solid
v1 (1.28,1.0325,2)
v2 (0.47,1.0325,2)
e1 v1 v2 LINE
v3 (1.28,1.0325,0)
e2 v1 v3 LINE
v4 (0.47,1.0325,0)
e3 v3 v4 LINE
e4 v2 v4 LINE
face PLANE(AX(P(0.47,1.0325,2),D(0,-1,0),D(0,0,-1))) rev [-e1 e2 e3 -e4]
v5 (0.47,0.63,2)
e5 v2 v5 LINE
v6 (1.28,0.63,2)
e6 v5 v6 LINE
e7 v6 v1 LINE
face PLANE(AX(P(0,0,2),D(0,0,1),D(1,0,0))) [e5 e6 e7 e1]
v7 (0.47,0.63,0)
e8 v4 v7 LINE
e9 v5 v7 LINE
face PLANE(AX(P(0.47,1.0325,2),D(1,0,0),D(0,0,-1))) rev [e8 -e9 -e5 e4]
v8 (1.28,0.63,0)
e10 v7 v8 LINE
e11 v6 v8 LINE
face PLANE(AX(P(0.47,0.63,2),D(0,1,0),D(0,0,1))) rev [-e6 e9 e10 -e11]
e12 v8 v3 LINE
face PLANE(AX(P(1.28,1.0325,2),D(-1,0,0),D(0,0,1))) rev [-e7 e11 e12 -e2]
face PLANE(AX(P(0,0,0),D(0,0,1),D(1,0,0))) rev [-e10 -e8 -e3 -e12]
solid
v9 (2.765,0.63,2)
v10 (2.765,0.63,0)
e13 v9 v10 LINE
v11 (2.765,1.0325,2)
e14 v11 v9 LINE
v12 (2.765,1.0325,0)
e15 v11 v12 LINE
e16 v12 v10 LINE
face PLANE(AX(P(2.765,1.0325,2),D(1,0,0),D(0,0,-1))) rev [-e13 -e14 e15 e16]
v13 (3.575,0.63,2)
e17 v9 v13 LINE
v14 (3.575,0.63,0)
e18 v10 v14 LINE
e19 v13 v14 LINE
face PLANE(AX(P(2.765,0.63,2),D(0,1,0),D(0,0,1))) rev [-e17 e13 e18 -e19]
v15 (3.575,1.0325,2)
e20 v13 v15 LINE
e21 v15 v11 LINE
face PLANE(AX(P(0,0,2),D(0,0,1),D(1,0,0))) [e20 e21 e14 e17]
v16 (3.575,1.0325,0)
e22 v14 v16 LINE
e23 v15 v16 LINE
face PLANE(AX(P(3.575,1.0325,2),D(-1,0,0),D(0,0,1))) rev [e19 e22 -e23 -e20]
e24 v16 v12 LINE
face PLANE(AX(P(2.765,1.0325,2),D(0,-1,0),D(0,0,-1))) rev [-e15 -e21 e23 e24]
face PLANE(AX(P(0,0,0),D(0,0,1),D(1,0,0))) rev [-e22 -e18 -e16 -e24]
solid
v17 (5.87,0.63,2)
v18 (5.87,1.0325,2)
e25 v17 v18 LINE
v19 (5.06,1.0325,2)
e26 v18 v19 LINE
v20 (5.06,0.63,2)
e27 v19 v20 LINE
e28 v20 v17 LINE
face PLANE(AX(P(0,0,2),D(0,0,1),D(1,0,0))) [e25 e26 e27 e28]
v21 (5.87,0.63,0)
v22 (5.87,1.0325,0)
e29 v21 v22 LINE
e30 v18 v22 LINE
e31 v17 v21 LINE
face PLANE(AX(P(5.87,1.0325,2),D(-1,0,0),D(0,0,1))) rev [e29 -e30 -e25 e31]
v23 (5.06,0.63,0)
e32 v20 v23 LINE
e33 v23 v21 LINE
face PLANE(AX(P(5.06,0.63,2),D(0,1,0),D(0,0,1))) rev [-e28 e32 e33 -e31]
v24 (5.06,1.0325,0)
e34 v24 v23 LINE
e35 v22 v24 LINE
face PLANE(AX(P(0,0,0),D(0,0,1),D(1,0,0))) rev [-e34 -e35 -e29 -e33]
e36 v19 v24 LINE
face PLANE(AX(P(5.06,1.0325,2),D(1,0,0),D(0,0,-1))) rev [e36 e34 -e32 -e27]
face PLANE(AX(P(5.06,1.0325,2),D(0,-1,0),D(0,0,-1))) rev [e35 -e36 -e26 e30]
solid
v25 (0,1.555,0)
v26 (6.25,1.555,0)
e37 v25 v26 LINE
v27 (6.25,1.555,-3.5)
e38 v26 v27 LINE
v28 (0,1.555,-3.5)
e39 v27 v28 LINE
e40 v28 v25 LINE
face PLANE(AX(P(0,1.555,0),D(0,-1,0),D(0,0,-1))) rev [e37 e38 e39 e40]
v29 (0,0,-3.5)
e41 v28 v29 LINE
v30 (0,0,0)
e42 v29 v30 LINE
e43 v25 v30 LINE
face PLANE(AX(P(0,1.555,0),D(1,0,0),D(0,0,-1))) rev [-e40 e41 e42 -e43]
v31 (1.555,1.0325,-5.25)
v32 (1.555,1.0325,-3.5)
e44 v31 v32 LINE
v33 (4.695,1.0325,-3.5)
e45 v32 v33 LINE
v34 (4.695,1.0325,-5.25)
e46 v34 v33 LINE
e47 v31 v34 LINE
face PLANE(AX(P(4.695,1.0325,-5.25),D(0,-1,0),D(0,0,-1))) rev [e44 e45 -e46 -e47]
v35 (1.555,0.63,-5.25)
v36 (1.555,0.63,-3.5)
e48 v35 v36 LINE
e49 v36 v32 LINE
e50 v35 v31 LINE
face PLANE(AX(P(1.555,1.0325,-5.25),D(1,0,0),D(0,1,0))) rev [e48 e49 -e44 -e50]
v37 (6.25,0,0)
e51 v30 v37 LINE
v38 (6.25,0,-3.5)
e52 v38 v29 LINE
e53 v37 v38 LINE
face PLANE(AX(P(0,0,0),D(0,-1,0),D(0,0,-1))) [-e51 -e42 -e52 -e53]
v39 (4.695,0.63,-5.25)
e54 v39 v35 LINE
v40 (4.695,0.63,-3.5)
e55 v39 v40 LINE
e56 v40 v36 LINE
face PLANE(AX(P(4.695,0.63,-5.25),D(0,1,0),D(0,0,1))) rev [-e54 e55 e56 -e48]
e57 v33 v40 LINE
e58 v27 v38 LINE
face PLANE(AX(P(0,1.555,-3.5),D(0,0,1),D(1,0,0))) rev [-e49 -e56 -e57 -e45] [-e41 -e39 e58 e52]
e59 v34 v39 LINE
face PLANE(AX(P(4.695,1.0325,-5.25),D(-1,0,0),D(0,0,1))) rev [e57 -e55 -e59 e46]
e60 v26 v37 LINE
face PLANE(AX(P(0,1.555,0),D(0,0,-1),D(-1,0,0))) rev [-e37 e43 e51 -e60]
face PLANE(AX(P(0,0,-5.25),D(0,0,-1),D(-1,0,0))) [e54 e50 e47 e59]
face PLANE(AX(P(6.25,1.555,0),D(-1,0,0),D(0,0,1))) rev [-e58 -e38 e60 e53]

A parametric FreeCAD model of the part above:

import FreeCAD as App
import Part
import Sketcher
Q = App.Units.Quantity

doc = App.newDocument("Part")
body = doc.addObject("PartDesign::Body", "Body")

# Sketch on XZ plane
sketch1 = body.newObject("Sketcher::SketchObject", "Sketch")
sketch1.AttachmentSupport = (doc.getObject("XZ_Plane"), [""])
sketch1.MapMode = "FlatFace"
sketch1.addGeometry(Part.LineSegment(App.Vector(0, -3.5, 0), App.Vector(0, 0, 0)), False)
sketch1.addGeometry(Part.LineSegment(App.Vector(0, 0, 0), App.Vector(6.25, 0, 0)), False)
sketch1.addGeometry(Part.LineSegment(App.Vector(6.25, 0, 0), App.Vector(6.25, -3.5, 0)), False)
sketch1.addGeometry(Part.LineSegment(App.Vector(6.25, -3.5, 0), App.Vector(0, -3.5, 0)), False)
sketch1.addConstraint(Sketcher.Constraint("Coincident", 0, 2, 1, 1))
sketch1.addConstraint(Sketcher.Constraint("Coincident", 1, 2, 2, 1))
sketch1.addConstraint(Sketcher.Constraint("Coincident", 2, 2, 3, 1))
sketch1.addConstraint(Sketcher.Constraint("Coincident", 3, 2, 0, 1))
sketch1.addConstraint(Sketcher.Constraint("Vertical", 0))
sketch1.addConstraint(Sketcher.Constraint("Horizontal", 1))
sketch1.addConstraint(Sketcher.Constraint("Vertical", 2))
sketch1.addConstraint(Sketcher.Constraint("Horizontal", 3))
sketch1.addConstraint(Sketcher.Constraint("Coincident", 0, 2, -1, 1))
sketch1.addConstraint(Sketcher.Constraint("DistanceY", 0, 1, 0, 2, Q("3.5 mm")))
sketch1.addConstraint(Sketcher.Constraint("DistanceX", 1, 1, 1, 2, Q("6.25 mm")))
pad1 = body.newObject("PartDesign::Pad", "Pad")
pad1.Profile = sketch1
pad1.Length = 1.555
pad1.Reversed = True

# Sketch on XY plane
sketch2 = body.newObject("Sketcher::SketchObject", "Sketch001")
sketch2.AttachmentSupport = (doc.getObject("XY_Plane"), [""])
sketch2.MapMode = "FlatFace"
sketch2.AttachmentOffset = App.Placement(App.Vector(0, 0, -3.5), App.Rotation())
sketch2.addGeometry(Part.LineSegment(App.Vector(4.695, 1.0325, 0), App.Vector(4.695, 0.63, 0)), False)
sketch2.addGeometry(Part.LineSegment(App.Vector(4.695, 0.63, 0), App.Vector(1.555, 0.63, 0)), False)
sketch2.addGeometry(Part.LineSegment(App.Vector(1.555, 0.63, 0), App.Vector(1.555, 1.0325, 0)), False)
sketch2.addGeometry(Part.LineSegment(App.Vector(1.555, 1.0325, 0), App.Vector(4.695, 1.0325, 0)), False)
sketch2.addConstraint(Sketcher.Constraint("Coincident", 0, 2, 1, 1))
sketch2.addConstraint(Sketcher.Constraint("Coincident", 1, 2, 2, 1))
sketch2.addConstraint(Sketcher.Constraint("Coincident", 2, 2, 3, 1))
sketch2.addConstraint(Sketcher.Constraint("Coincident", 3, 2, 0, 1))
sketch2.addConstraint(Sketcher.Constraint("Vertical", 0))
sketch2.addConstraint(Sketcher.Constraint("Horizontal", 1))
sketch2.addConstraint(Sketcher.Constraint("Vertical", 2))
sketch2.addConstraint(Sketcher.Constraint("Horizontal", 3))
sketch2.addConstraint(Sketcher.Constraint("DistanceX", 1, 2, 1, 1, Q("3.14 mm")))
sketch2.addConstraint(Sketcher.Constraint("DistanceY", -1, 1, 0, 2, Q("0.63 mm")))
sketch2.addConstraint(Sketcher.Constraint("DistanceY", 0, 2, 0, 1, Q("0.4025 mm")))
sketch2.addConstraint(Sketcher.Constraint("DistanceX", -1, 1, 0, 2, Q("4.695 mm")))
pad2 = body.newObject("PartDesign::Pad", "Pad001")
pad2.Profile = sketch2
pad2.Length = 1.75
pad2.Reversed = True
body2 = doc.addObject("PartDesign::Body", "Body001")

# Sketch on XY plane
sketch3 = body2.newObject("Sketcher::SketchObject", "Sketch002")
sketch3.AttachmentSupport = (doc.getObject("XY_Plane001"), [""])
sketch3.MapMode = "FlatFace"
sketch3.addGeometry(Part.LineSegment(App.Vector(0.47, 1.0325, 0), App.Vector(0.47, 0.63, 0)), False)
sketch3.addGeometry(Part.LineSegment(App.Vector(0.47, 0.63, 0), App.Vector(1.28, 0.63, 0)), False)
sketch3.addGeometry(Part.LineSegment(App.Vector(1.28, 0.63, 0), App.Vector(1.28, 1.0325, 0)), False)
sketch3.addGeometry(Part.LineSegment(App.Vector(1.28, 1.0325, 0), App.Vector(0.47, 1.0325, 0)), False)
sketch3.addConstraint(Sketcher.Constraint("Coincident", 0, 2, 1, 1))
sketch3.addConstraint(Sketcher.Constraint("Coincident", 1, 2, 2, 1))
sketch3.addConstraint(Sketcher.Constraint("Coincident", 2, 2, 3, 1))
sketch3.addConstraint(Sketcher.Constraint("Coincident", 3, 2, 0, 1))
sketch3.addConstraint(Sketcher.Constraint("Vertical", 0))
sketch3.addConstraint(Sketcher.Constraint("Horizontal", 1))
sketch3.addConstraint(Sketcher.Constraint("Vertical", 2))
sketch3.addConstraint(Sketcher.Constraint("Horizontal", 3))
sketch3.addConstraint(Sketcher.Constraint("DistanceX", 1, 1, 1, 2, Q("0.81 mm")))
sketch3.addConstraint(Sketcher.Constraint("DistanceX", -1, 1, 0, 2, Q("0.47 mm")))
sketch3.addConstraint(Sketcher.Constraint("DistanceY", -1, 1, 0, 2, Q("0.63 mm")))
sketch3.addConstraint(Sketcher.Constraint("DistanceY", 0, 2, 0, 1, Q("0.4025 mm")))
pad3 = body2.newObject("PartDesign::Pad", "Pad002")
pad3.Profile = sketch3
pad3.Length = 2
body3 = doc.addObject("PartDesign::Body", "Body002")

# Sketch on XY plane
sketch4 = body3.newObject("Sketcher::SketchObject", "Sketch003")
sketch4.AttachmentSupport = (doc.getObject("XY_Plane002"), [""])
sketch4.MapMode = "FlatFace"
sketch4.addGeometry(Part.LineSegment(App.Vector(2.765, 1.0325, 0), App.Vector(2.765, 0.63, 0)), False)
sketch4.addGeometry(Part.LineSegment(App.Vector(2.765, 0.63, 0), App.Vector(3.575, 0.63, 0)), False)
sketch4.addGeometry(Part.LineSegment(App.Vector(3.575, 0.63, 0), App.Vector(3.575, 1.0325, 0)), False)
sketch4.addGeometry(Part.LineSegment(App.Vector(3.575, 1.0325, 0), App.Vector(2.765, 1.0325, 0)), False)
sketch4.addConstraint(Sketcher.Constraint("Coincident", 0, 2, 1, 1))
sketch4.addConstraint(Sketcher.Constraint("Coincident", 1, 2, 2, 1))
sketch4.addConstraint(Sketcher.Constraint("Coincident", 2, 2, 3, 1))
sketch4.addConstraint(Sketcher.Constraint("Coincident", 3, 2, 0, 1))
sketch4.addConstraint(Sketcher.Constraint("Vertical", 0))
sketch4.addConstraint(Sketcher.Constraint("Horizontal", 1))
sketch4.addConstraint(Sketcher.Constraint("Vertical", 2))
sketch4.addConstraint(Sketcher.Constraint("Horizontal", 3))
sketch4.addConstraint(Sketcher.Constraint("DistanceX", 1, 1, 1, 2, Q("0.81 mm")))
sketch4.addConstraint(Sketcher.Constraint("DistanceY", -1, 1, 0, 2, Q("0.63 mm")))
sketch4.addConstraint(Sketcher.Constraint("DistanceY", 0, 2, 0, 1, Q("0.4025 mm")))
sketch4.addConstraint(Sketcher.Constraint("DistanceX", -1, 1, 0, 2, Q("2.765 mm")))
pad4 = body3.newObject("PartDesign::Pad", "Pad003")
pad4.Profile = sketch4
pad4.Length = 2
body4 = doc.addObject("PartDesign::Body", "Body003")

# Sketch on XY plane
sketch5 = body4.newObject("Sketcher::SketchObject", "Sketch004")
sketch5.AttachmentSupport = (doc.getObject("XY_Plane003"), [""])
sketch5.MapMode = "FlatFace"
sketch5.addGeometry(Part.LineSegment(App.Vector(5.06, 1.0325, 0), App.Vector(5.06, 0.63, 0)), False)
sketch5.addGeometry(Part.LineSegment(App.Vector(5.06, 0.63, 0), App.Vector(5.87, 0.63, 0)), False)
sketch5.addGeometry(Part.LineSegment(App.Vector(5.87, 0.63, 0), App.Vector(5.87, 1.0325, 0)), False)
sketch5.addGeometry(Part.LineSegment(App.Vector(5.87, 1.0325, 0), App.Vector(5.06, 1.0325, 0)), False)
sketch5.addConstraint(Sketcher.Constraint("Coincident", 0, 2, 1, 1))
sketch5.addConstraint(Sketcher.Constraint("Coincident", 1, 2, 2, 1))
sketch5.addConstraint(Sketcher.Constraint("Coincident", 2, 2, 3, 1))
sketch5.addConstraint(Sketcher.Constraint("Coincident", 3, 2, 0, 1))
sketch5.addConstraint(Sketcher.Constraint("Vertical", 0))
sketch5.addConstraint(Sketcher.Constraint("Horizontal", 1))
sketch5.addConstraint(Sketcher.Constraint("Vertical", 2))
sketch5.addConstraint(Sketcher.Constraint("Horizontal", 3))
sketch5.addConstraint(Sketcher.Constraint("DistanceX", 1, 1, 1, 2, Q("0.81 mm")))
sketch5.addConstraint(Sketcher.Constraint("DistanceX", -1, 1, 0, 2, Q("5.06 mm")))
sketch5.addConstraint(Sketcher.Constraint("DistanceY", -1, 1, 0, 2, Q("0.63 mm")))
sketch5.addConstraint(Sketcher.Constraint("DistanceY", 0, 2, 0, 1, Q("0.4025 mm")))
pad5 = body4.newObject("PartDesign::Pad", "Pad004")
pad5.Profile = sketch5
pad5.Length = 2

doc.recompute()
